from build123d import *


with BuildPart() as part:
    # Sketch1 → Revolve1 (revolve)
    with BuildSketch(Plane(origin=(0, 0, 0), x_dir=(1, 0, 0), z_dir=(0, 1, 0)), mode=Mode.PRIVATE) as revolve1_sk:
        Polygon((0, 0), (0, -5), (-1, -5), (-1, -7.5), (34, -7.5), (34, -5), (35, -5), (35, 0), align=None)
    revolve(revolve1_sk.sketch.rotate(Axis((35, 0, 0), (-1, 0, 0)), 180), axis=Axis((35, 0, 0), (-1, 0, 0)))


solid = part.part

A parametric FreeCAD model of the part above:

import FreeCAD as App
import Part
import Sketcher

V = App.Vector
Q = App.Units.Quantity

doc = App.newDocument("Part")
params = doc.addObject("Spreadsheet::Sheet", "Params")
for row, (alias, value) in enumerate([
    ("sketch1_width", "1 mm"),
    ("sketch1_width2", "35 mm"),
    ("sketch1_height", "5 mm"),
    ("sketch1_height2", "2.5 mm"),
    ("revolution_angle", "360 deg"),
], start=1):
    params.set(f"A{row}", alias)
    params.set(f"B{row}", "=" + value)
    params.setAlias(f"B{row}", alias)

body = doc.addObject("PartDesign::Body", "Body")

# Sketch on XZ plane
sketch1 = body.newObject("Sketcher::SketchObject", "Sketch")
sketch1.AttachmentSupport = (doc.getObject("XZ_Plane"), [""])
sketch1.MapMode = "FlatFace"
sketch1.addGeometry([
    Part.LineSegment(V(0, 0, 0), V(0, 5, 0)),  # 0
    Part.LineSegment(V(0, 5, 0), V(-1, 5, 0)),  # 1
    Part.LineSegment(V(-1, 5, 0), V(-1, 7.5, 0)),  # 2
    Part.LineSegment(V(-1, 7.5, 0), V(34, 7.5, 0)),  # 3
    Part.LineSegment(V(34, 7.5, 0), V(34, 5, 0)),  # 4
    Part.LineSegment(V(34, 5, 0), V(35, 5, 0)),  # 5
    Part.LineSegment(V(35, 5, 0), V(35, 0, 0)),  # 6
    Part.LineSegment(V(35, 0, 0), V(0, 0, 0)),  # 7
], False)
sketch1.addConstraint([
    Sketcher.Constraint("Coincident", 0, 2, 1, 1),
    Sketcher.Constraint("Coincident", 1, 2, 2, 1),
    Sketcher.Constraint("Coincident", 2, 2, 3, 1),
    Sketcher.Constraint("Coincident", 3, 2, 4, 1),
    Sketcher.Constraint("Coincident", 4, 2, 5, 1),
    Sketcher.Constraint("Coincident", 5, 2, 6, 1),
    Sketcher.Constraint("Coincident", 6, 2, 7, 1),
    Sketcher.Constraint("Coincident", 7, 2, 0, 1),
    Sketcher.Constraint("Vertical", 0),
    Sketcher.Constraint("Horizontal", 1),
    Sketcher.Constraint("Vertical", 2),
    Sketcher.Constraint("Horizontal", 3),
    Sketcher.Constraint("Vertical", 4),
    Sketcher.Constraint("Horizontal", 5),
    Sketcher.Constraint("Vertical", 6),
    Sketcher.Constraint("Horizontal", 7),
    Sketcher.Constraint("Coincident", 7, 2, -1, 1),
    Sketcher.Constraint("Horizontal", 1, 2, 4, 2),
    Sketcher.Constraint("Equal", 1, 5),
    Sketcher.Constraint("DistanceX", 1, 2, 1, 1, Q("1 mm")),
    Sketcher.Constraint("DistanceX", 3, 1, 3, 2, Q("35 mm")),
    Sketcher.Constraint("DistanceY", 0, 1, 0, 2, Q("5 mm")),
    Sketcher.Constraint("DistanceY", 2, 1, 2, 2, Q("2.5 mm")),
])
sketch1.setExpression("Constraints[19]", "Params.sketch1_width")
sketch1.setExpression("Constraints[20]", "Params.sketch1_width2")
sketch1.setExpression("Constraints[21]", "Params.sketch1_height")
sketch1.setExpression("Constraints[22]", "Params.sketch1_height2")
revolution = body.newObject("PartDesign::Revolution", "Revolution")
revolution.Profile = sketch1
revolution.ReferenceAxis = (sketch1, ["H_Axis"])
revolution.setExpression("Angle", "Params.revolution_angle")

doc.recompute()
